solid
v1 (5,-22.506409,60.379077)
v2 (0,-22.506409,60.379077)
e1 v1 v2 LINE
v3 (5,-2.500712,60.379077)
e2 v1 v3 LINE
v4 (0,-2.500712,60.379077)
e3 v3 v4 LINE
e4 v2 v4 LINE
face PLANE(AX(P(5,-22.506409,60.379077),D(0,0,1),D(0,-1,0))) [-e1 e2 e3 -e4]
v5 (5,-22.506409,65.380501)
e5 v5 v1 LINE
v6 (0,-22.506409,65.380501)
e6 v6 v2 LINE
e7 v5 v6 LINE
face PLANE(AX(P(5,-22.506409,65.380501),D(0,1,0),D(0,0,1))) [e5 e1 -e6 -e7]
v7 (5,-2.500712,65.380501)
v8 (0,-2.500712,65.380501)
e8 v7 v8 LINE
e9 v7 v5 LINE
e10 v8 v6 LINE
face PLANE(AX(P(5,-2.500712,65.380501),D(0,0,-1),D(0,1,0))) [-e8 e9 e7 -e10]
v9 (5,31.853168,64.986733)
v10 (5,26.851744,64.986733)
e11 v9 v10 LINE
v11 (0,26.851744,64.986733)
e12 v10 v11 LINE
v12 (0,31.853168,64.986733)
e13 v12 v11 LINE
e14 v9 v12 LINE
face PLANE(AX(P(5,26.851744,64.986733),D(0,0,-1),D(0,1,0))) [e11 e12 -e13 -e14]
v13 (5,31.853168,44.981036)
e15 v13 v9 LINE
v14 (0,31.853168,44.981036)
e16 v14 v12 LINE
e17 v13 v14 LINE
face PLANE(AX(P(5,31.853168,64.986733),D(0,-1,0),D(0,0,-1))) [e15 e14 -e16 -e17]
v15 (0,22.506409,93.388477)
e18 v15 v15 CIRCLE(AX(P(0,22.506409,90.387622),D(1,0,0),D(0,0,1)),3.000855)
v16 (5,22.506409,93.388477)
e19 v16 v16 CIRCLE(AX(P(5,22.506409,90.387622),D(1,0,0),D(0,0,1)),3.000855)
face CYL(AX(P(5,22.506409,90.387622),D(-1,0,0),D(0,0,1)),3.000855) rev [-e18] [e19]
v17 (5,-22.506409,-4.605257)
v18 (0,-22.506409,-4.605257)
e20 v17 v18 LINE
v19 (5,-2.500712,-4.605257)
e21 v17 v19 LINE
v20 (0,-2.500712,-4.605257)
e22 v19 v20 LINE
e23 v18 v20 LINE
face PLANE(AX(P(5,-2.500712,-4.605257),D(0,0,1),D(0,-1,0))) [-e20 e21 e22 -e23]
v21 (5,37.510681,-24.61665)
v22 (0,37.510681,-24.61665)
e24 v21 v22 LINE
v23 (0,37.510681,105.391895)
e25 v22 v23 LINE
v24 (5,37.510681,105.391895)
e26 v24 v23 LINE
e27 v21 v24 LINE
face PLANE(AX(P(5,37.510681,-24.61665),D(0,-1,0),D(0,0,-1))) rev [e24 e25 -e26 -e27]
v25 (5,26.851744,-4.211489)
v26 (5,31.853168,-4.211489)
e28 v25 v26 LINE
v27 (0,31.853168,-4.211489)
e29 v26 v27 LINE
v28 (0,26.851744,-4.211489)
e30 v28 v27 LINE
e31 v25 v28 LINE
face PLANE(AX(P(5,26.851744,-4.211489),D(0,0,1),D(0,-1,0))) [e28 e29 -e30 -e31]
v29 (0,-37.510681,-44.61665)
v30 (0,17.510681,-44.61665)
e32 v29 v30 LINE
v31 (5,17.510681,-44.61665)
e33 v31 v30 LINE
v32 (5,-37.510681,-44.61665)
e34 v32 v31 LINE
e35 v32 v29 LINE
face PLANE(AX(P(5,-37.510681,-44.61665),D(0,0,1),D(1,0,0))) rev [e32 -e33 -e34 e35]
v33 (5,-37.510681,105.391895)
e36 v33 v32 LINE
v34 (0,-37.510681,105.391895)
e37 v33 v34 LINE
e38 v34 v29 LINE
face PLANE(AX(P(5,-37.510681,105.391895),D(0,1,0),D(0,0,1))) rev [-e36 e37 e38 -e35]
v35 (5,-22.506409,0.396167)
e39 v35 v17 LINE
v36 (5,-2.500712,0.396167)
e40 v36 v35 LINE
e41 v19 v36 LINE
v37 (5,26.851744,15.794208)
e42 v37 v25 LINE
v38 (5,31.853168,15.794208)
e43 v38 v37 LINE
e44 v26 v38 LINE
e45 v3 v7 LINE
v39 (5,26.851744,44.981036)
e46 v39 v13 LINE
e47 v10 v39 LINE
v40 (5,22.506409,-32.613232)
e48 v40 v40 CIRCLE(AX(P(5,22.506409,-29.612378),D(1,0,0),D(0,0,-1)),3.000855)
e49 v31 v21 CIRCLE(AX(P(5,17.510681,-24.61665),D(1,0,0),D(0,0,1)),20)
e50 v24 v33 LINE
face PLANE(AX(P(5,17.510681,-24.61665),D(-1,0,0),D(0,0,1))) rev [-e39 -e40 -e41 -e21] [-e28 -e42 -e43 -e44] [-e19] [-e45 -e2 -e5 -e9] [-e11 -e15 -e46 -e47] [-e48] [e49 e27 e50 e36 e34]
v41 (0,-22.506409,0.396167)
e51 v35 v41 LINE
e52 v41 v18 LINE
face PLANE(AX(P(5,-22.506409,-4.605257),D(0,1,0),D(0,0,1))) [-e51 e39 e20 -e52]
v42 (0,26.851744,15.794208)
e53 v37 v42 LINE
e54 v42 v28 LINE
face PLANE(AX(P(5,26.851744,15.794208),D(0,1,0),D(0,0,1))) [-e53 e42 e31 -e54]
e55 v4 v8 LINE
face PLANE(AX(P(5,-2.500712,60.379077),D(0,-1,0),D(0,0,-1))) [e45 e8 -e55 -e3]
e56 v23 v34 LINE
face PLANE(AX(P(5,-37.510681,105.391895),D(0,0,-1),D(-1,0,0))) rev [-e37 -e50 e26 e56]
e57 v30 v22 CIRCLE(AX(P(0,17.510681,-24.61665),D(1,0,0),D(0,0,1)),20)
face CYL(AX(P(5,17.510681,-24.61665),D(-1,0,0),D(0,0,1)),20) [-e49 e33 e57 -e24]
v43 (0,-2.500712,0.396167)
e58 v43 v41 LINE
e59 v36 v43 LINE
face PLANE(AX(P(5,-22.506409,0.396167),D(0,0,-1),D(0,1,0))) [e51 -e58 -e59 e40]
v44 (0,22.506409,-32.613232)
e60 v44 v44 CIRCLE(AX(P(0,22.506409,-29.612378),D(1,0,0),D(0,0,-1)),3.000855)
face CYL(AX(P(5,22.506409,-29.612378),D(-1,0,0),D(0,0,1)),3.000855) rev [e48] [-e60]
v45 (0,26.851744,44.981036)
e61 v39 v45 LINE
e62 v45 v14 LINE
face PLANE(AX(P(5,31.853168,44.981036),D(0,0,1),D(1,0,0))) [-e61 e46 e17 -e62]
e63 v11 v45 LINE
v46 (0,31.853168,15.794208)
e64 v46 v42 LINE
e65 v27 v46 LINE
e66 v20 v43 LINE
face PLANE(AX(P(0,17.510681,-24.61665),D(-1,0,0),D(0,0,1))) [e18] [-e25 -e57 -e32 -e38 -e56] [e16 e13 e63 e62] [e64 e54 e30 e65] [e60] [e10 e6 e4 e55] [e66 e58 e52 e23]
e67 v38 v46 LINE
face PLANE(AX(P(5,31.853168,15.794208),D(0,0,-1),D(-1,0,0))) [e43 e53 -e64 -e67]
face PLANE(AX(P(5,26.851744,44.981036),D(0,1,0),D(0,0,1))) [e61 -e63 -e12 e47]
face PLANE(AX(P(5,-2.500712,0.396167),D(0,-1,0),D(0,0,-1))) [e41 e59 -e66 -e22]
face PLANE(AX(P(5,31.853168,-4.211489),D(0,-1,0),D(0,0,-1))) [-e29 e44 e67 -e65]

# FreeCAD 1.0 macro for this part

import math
import FreeCAD as App
import Part
import Sketcher

V = App.Vector


def add_polygon(sketch, points):
    """Adds a closed chain of lines whose ends are joined by coincident constraints."""
    first, n = sketch.GeometryCount, len(points)
    for a, b in zip(points, points[1:] + points[:1]):
        sketch.addGeometry(Part.LineSegment(App.Vector(*a, 0), App.Vector(*b, 0)), False)
    for i in range(n):
        sketch.addConstraint(Sketcher.Constraint("Coincident", first + i, 2, first + (i + 1) % n, 1))

doc = App.newDocument("Part")
params = doc.addObject("Spreadsheet::Sheet", "Params")
for row, (alias, value) in enumerate([
    ("sketch1_radius", "20 mm"),
    ("pad1_length", "5 mm"),
], start=1):
    params.set(f"A{row}", alias)
    params.set(f"B{row}", "=" + value)
    params.setAlias(f"B{row}", alias)

body = doc.addObject("PartDesign::Body", "Body")

# Sketch on YZ plane
sketch1 = body.newObject("Sketcher::SketchObject", "Sketch")
sketch1.AttachmentSupport = (doc.getObject("YZ_Plane"), [""])
sketch1.MapMode = "FlatFace"
sketch1.addGeometry(Part.LineSegment(V(-37.5, 105.4, 0), V(-37.5, -44.6, 0)), False)  # 0
sketch1.addGeometry(Part.LineSegment(V(-37.5, -44.6, 0), V(17.5, -44.6, 0)), False)  # 1
sketch1.addGeometry(Part.ArcOfCircle(Part.Circle(V(17.5, -24.6, 0), V(0, 0, 1), 20), math.radians(-90), math.radians(0)), False)  # 2
sketch1.addGeometry(Part.LineSegment(V(37.5, -24.6, 0), V(37.5, 105.4, 0)), False)  # 3
sketch1.addGeometry(Part.LineSegment(V(37.5, 105.4, 0), V(-37.5, 105.4, 0)), False)  # 4
add_polygon(sketch1, [(-22.5, 60.4), (-22.5, 65.4), (-2.5, 65.4), (-2.5, 60.4)])  # lines 5-8
add_polygon(sketch1, [(-22.5, -4.6), (-22.5, 0.4), (-2.5, 0.4), (-2.5, -4.6)])  # lines 9-12
sketch1.addGeometry(Part.Circle(V(22.5, 90.4, 0), V(0, 0, 1), 3), False)  # 13
add_polygon(sketch1, [(26.9, 45), (26.9, 65), (31.9, 65), (31.9, 45)])  # lines 14-17
add_polygon(sketch1, [(26.9, -4.2), (26.9, 15.8), (31.9, 15.8), (31.9, -4.2)])  # lines 18-21
sketch1.addGeometry(Part.Circle(V(22.5, -29.6, 0), V(0, 0, 1), 3), False)  # 22
sketch1.addConstraint([
    Sketcher.Constraint("Coincident", 0, 2, 1, 1),
    Sketcher.Constraint("Tangent", 1, 2, 2, 1),
    Sketcher.Constraint("Tangent", 2, 2, 3, 1),
    Sketcher.Constraint("Coincident", 3, 2, 4, 1),
    Sketcher.Constraint("Coincident", 4, 2, 0, 1),
    Sketcher.Constraint("Vertical", 0),
    Sketcher.Constraint("Horizontal", 1),
    Sketcher.Constraint("Vertical", 3),
    Sketcher.Constraint("Horizontal", 4),
    Sketcher.Constraint("Vertical", 5),
    Sketcher.Constraint("Horizontal", 6),
    Sketcher.Constraint("Vertical", 7),
    Sketcher.Constraint("Horizontal", 8),
    Sketcher.Constraint("Vertical", 9),
    Sketcher.Constraint("Horizontal", 10),
    Sketcher.Constraint("Vertical", 11),
    Sketcher.Constraint("Horizontal", 12),
    Sketcher.Constraint("Vertical", 14),
    Sketcher.Constraint("Horizontal", 15),
    Sketcher.Constraint("Vertical", 16),
    Sketcher.Constraint("Horizontal", 17),
    Sketcher.Constraint("Vertical", 18),
    Sketcher.Constraint("Horizontal", 19),
    Sketcher.Constraint("Vertical", 20),
    Sketcher.Constraint("Horizontal", 21),
    Sketcher.Constraint("Equal", 13, 22),
    Sketcher.Constraint("Vertical", 13, 3, 22, 3),
    Sketcher.Constraint("Vertical", 8, 2, 9, 2),
    Sketcher.Constraint("Vertical", 7, 2, 10, 2),
    Sketcher.Constraint("Vertical", 17, 2, 18, 2),
    Sketcher.Constraint("Vertical", 16, 2, 19, 2),
    Sketcher.Constraint("Equal", 21, 5),
    Sketcher.Constraint("Equal", 7, 9),
    Sketcher.Constraint("Equal", 12, 14),
    Sketcher.Constraint("Equal", 16, 18),
    Sketcher.Constraint("Radius", 2, 20.0),
    Sketcher.Constraint("DistanceY", 22, 3, 13, 3, 120.0),
    Sketcher.Constraint("Diameter", 13, 6.001709),
    Sketcher.Constraint("DistanceY", -1, 1, 5, 2, 65.380501),
    Sketcher.Constraint("DistanceX", 1, 1, 1, 2, 55.021363),
    Sketcher.Constraint("DistanceX", 6, 1, 6, 2, 20.005697),
    Sketcher.Constraint("DistanceX", 15, 1, 15, 2, 5.001424),
    Sketcher.Constraint("DistanceY", 0, 2, 0, 1, 150.008545),
    Sketcher.Constraint("DistanceX", -1, 1, 2, 3, 17.510681),
    Sketcher.Constraint("DistanceY", 2, 3, -1, 1, 24.61665),
    Sketcher.Constraint("DistanceX", -1, 1, 13, 3, 22.506409),
    Sketcher.Constraint("DistanceX", 5, 2, -1, 1, 22.506409),
    Sketcher.Constraint("DistanceX", -1, 1, 15, 2, 31.853168),
    Sketcher.Constraint("DistanceY", -1, 1, 18, 2, 15.794208),
    Sketcher.Constraint("DistanceY", 5, 2, 13, 3, 25.007121),
    Sketcher.Constraint("DistanceY", 9, 2, 8, 2, 59.98291),
    Sketcher.Constraint("DistanceY", 14, 2, 13, 3, 25.400889),
])
sketch1.setExpression("Constraints[51]", "Params.sketch1_radius")
pad1 = body.newObject("PartDesign::Pad", "Pad")
pad1.Profile = sketch1
pad1.setExpression("Length", "Params.pad1_length")

doc.recompute()
